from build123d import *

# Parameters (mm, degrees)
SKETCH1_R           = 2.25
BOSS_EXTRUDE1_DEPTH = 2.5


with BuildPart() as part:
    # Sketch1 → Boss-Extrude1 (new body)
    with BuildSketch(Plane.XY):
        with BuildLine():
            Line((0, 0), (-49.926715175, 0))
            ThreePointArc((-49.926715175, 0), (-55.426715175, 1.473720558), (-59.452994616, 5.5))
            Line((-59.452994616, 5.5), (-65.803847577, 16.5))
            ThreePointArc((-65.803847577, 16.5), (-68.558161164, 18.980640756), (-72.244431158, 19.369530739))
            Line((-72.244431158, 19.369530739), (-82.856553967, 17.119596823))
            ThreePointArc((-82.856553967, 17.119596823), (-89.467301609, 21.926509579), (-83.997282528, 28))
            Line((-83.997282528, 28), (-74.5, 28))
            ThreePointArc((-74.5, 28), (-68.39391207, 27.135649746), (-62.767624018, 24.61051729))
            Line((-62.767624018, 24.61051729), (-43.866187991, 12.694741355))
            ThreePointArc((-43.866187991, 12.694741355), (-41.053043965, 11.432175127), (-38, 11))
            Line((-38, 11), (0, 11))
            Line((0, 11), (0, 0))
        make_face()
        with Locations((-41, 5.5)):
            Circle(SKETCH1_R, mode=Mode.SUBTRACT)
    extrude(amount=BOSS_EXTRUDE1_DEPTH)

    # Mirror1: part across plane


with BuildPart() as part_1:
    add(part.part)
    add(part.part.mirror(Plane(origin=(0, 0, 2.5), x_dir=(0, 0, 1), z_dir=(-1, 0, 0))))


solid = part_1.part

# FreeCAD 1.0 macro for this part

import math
import FreeCAD as App
import Part
import Sketcher

V = App.Vector
Q = App.Units.Quantity

doc = App.newDocument("Part")
params = doc.addObject("Spreadsheet::Sheet", "Params")
for row, (alias, value) in enumerate([
    ("sketch1_radius", "11 mm"),
    ("sketch1_radius2", "22 mm"),
    ("sketch1_radius3", "6 mm"),
    ("sketch1_diameter", "4.5 mm"),
    ("sketch1_radius4", "5.5 mm"),
    ("pad1_length", "2.5 mm"),
], start=1):
    params.set(f"A{row}", alias)
    params.set(f"B{row}", "=" + value)
    params.setAlias(f"B{row}", alias)

body = doc.addObject("PartDesign::Body", "Body")

sketch1 = doc.addObject("Sketcher::SketchObject", "Sketch")
body.addObject(sketch1)
sketch1.AttachmentSupport = (doc.XY_Plane, [""])
sketch1.MapMode = "FlatFace"
sketch1.addGeometry(Part.LineSegment(V(-49.9, 0, 0), V(0, 0, 0)), False)
sketch1.addGeometry(Part.LineSegment(V(0, 0, 0), V(0, 11, 0)), False)
sketch1.addGeometry(Part.LineSegment(V(0, 11, 0), V(-38, 11, 0)), False)
sketch1.addGeometry(Part.ArcOfCircle(Part.Circle(V(-38, 22, 0), V(0, 0, 1), 11), math.radians(-122), math.radians(-90)), False)
sketch1.addGeometry(Part.LineSegment(V(-43.9, 12.7, 0), V(-62.8, 24.6, 0)), False)
sketch1.addGeometry(Part.ArcOfCircle(Part.Circle(V(-74.5, 6, 0), V(0, 0, 1), 22), math.radians(58), math.radians(90)), False)
sketch1.addGeometry(Part.LineSegment(V(-74.5, 28, 0), V(-84, 28, 0)), False)
sketch1.addGeometry(Part.ArcOfCircle(Part.Circle(V(-84, 22.5, 0), V(0, 0, 1), 5.5), math.radians(90), math.radians(282)), False)
sketch1.addGeometry(Part.LineSegment(V(-82.9, 17.1, 0), V(-72.2, 19.4, 0)), False)
sketch1.addGeometry(Part.ArcOfCircle(Part.Circle(V(-71, 13.5, 0), V(0, 0, 1), 6), math.radians(30), math.radians(102)), False)
sketch1.addGeometry(Part.LineSegment(V(-65.8, 16.5, 0), V(-59.5, 5.5, 0)), False)
sketch1.addGeometry(Part.ArcOfCircle(Part.Circle(V(-49.9, 11, 0), V(0, 0, 1), 11), math.radians(-150), math.radians(-90)), False)
sketch1.addGeometry(Part.Circle(V(-41, 5.5, 0), V(0, 0, 1), 2.2), False)
sketch1.addConstraint(Sketcher.Constraint("Coincident", 0, 2, 1, 1))
sketch1.addConstraint(Sketcher.Constraint("Coincident", 1, 2, 2, 1))
sketch1.addConstraint(Sketcher.Constraint("Tangent", 2, 2, 3, 2))
sketch1.addConstraint(Sketcher.Constraint("Tangent", 3, 1, 4, 1))
sketch1.addConstraint(Sketcher.Constraint("Tangent", 4, 2, 5, 1))
sketch1.addConstraint(Sketcher.Constraint("Tangent", 5, 2, 6, 1))
sketch1.addConstraint(Sketcher.Constraint("Tangent", 6, 2, 7, 1))
sketch1.addConstraint(Sketcher.Constraint("Tangent", 7, 2, 8, 1))
sketch1.addConstraint(Sketcher.Constraint("Tangent", 8, 2, 9, 2))
sketch1.addConstraint(Sketcher.Constraint("Tangent", 9, 1, 10, 1))
sketch1.addConstraint(Sketcher.Constraint("Tangent", 10, 2, 11, 1))
sketch1.addConstraint(Sketcher.Constraint("Tangent", 11, 2, 0, 1))
sketch1.addConstraint(Sketcher.Constraint("Horizontal", 0))
sketch1.addConstraint(Sketcher.Constraint("Vertical", 1))
sketch1.addConstraint(Sketcher.Constraint("Horizontal", 2))
sketch1.addConstraint(Sketcher.Constraint("Horizontal", 6))
sketch1.addConstraint(Sketcher.Constraint("Coincident", 0, 2, -1, 1))
sketch1.addConstraint(Sketcher.Constraint("Equal", 3, 11))
sketch1.addConstraint(Sketcher.Constraint("Horizontal", 11, 3, 1, 2))
sketch1.addConstraint(Sketcher.Constraint("Horizontal", 12, 3, 10, 2))
sketch1.addConstraint(Sketcher.Constraint("Radius", 3, Q("11 mm")))
sketch1.addConstraint(Sketcher.Constraint("Radius", 5, Q("22 mm")))
sketch1.addConstraint(Sketcher.Constraint("Radius", 9, Q("6 mm")))
sketch1.addConstraint(Sketcher.Constraint("Diameter", 12, Q("4.5 mm")))
sketch1.addConstraint(Sketcher.Constraint("Radius", 7, Q("5.5 mm")))
sketch1.addConstraint(Sketcher.Constraint("DistanceX", 2, 2, 2, 1, Q("38 mm")))
sketch1.addConstraint(Sketcher.Constraint("Angle", 10, Q("-60 deg")))
sketch1.addConstraint(Sketcher.Constraint("DistanceY", -1, 1, 5, 3, Q("6 mm")))
sketch1.addConstraint(Sketcher.Constraint("DistanceX", 9, 3, -1, 1, Q("71 mm")))
sketch1.addConstraint(Sketcher.Constraint("DistanceX", 12, 3, -1, 1, Q("41 mm")))
sketch1.addConstraint(Sketcher.Constraint("DistanceY", 9, 3, 7, 3, Q("9 mm")))
sketch1.addConstraint(Sketcher.Constraint("DistanceX", 5, 3, -1, 1, Q("74.5 mm")))
sketch1.addConstraint(Sketcher.Constraint("Distance", 8, Q("10.848011 mm")))
sketch1.setExpression("Constraints[20]", "Params.sketch1_radius")
sketch1.setExpression("Constraints[21]", "Params.sketch1_radius2")
sketch1.setExpression("Constraints[22]", "Params.sketch1_radius3")
sketch1.setExpression("Constraints[23]", "Params.sketch1_diameter")
sketch1.setExpression("Constraints[24]", "Params.sketch1_radius4")
pad1 = doc.addObject("PartDesign::Pad", "Pad")
body.addObject(pad1)
pad1.Profile = sketch1
pad1.setExpression("Length", "Params.pad1_length")
body2 = doc.addObject("PartDesign::Body", "Body001")
doc.recompute()

body2.BaseFeature = body
doc.recompute()

mirroring = doc.addObject("Part::Mirroring", "Mirroring")
mirroring.Source = body
mirroring.Base = V(0, 0, 2.5)
mirroring.Normal = V(-1, 0, 0)
body3 = doc.addObject("PartDesign::Body", "Body002")
body3.BaseFeature = mirroring
boolean = doc.addObject("PartDesign::Boolean", "Boolean")
body2.addObject(boolean)
boolean.Type = "Fuse"
boolean.addObjects([body3])
doc.recompute()
mirroring.Visibility = False

doc.recompute()
